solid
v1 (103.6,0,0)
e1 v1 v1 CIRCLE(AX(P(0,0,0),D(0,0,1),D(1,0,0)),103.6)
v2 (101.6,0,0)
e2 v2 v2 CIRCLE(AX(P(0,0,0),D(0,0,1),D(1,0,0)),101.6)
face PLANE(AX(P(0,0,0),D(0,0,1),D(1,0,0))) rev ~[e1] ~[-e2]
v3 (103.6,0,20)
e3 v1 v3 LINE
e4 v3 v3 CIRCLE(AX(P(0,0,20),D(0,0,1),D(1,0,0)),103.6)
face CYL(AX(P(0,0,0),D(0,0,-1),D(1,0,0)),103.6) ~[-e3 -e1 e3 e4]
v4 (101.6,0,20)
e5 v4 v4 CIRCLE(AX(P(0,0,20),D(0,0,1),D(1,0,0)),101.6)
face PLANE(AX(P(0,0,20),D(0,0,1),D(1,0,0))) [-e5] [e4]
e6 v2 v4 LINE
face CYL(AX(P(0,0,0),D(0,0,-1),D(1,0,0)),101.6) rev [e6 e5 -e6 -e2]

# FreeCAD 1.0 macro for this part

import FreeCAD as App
import Part
import Sketcher
from FreeCAD import Vector
Q = App.Units.Quantity

doc = App.newDocument("Part")
body = doc.addObject("PartDesign::Body", "Body")

# Sketch on XY plane
sketch1 = doc.addObject("Sketcher::SketchObject", "Sketch")
body.addObject(sketch1)
sketch1.AttachmentSupport = (doc.XY_Plane, [""])
sketch1.MapMode = "FlatFace"
sketch1.addGeometry(Part.Circle(Vector(0, 0, 0), Vector(0, 0, 1), 101.6), False)
sketch1.addConstraint([
    Sketcher.Constraint("Coincident", 0, 3, -1, 1),
    Sketcher.Constraint("Diameter", 0, Q("203.2 mm")),
])
pad1 = doc.addObject("PartDesign::Pad", "Pad")
body.addObject(pad1)
pad1.Profile = sketch1
pad1.Length = 20
body2 = doc.addObject("PartDesign::Body", "Body001")

# Sketch on XY plane
sketch2 = doc.addObject("Sketcher::SketchObject", "Sketch001")
body2.addObject(sketch2)
sketch2.AttachmentSupport = (doc.getObject("XY_Plane001"), [""])
sketch2.MapMode = "FlatFace"
sketch2.addGeometry(Part.Circle(Vector(0, 0, 0), Vector(0, 0, 1), 103.6), False)
sketch2.addConstraint([
    Sketcher.Constraint("Coincident", 0, 3, -1, 1),
    Sketcher.Constraint("Diameter", 0, Q("207.2 mm")),
])
pad2 = doc.addObject("PartDesign::Pad", "Pad001")
body2.addObject(pad2)
pad2.Profile = sketch2
pad2.Length = 20
doc.recompute()

boolean = doc.addObject("PartDesign::Boolean", "Boolean")
body2.addObject(boolean)
boolean.Type = "Cut"
boolean.addObjects([body])

doc.recompute()
